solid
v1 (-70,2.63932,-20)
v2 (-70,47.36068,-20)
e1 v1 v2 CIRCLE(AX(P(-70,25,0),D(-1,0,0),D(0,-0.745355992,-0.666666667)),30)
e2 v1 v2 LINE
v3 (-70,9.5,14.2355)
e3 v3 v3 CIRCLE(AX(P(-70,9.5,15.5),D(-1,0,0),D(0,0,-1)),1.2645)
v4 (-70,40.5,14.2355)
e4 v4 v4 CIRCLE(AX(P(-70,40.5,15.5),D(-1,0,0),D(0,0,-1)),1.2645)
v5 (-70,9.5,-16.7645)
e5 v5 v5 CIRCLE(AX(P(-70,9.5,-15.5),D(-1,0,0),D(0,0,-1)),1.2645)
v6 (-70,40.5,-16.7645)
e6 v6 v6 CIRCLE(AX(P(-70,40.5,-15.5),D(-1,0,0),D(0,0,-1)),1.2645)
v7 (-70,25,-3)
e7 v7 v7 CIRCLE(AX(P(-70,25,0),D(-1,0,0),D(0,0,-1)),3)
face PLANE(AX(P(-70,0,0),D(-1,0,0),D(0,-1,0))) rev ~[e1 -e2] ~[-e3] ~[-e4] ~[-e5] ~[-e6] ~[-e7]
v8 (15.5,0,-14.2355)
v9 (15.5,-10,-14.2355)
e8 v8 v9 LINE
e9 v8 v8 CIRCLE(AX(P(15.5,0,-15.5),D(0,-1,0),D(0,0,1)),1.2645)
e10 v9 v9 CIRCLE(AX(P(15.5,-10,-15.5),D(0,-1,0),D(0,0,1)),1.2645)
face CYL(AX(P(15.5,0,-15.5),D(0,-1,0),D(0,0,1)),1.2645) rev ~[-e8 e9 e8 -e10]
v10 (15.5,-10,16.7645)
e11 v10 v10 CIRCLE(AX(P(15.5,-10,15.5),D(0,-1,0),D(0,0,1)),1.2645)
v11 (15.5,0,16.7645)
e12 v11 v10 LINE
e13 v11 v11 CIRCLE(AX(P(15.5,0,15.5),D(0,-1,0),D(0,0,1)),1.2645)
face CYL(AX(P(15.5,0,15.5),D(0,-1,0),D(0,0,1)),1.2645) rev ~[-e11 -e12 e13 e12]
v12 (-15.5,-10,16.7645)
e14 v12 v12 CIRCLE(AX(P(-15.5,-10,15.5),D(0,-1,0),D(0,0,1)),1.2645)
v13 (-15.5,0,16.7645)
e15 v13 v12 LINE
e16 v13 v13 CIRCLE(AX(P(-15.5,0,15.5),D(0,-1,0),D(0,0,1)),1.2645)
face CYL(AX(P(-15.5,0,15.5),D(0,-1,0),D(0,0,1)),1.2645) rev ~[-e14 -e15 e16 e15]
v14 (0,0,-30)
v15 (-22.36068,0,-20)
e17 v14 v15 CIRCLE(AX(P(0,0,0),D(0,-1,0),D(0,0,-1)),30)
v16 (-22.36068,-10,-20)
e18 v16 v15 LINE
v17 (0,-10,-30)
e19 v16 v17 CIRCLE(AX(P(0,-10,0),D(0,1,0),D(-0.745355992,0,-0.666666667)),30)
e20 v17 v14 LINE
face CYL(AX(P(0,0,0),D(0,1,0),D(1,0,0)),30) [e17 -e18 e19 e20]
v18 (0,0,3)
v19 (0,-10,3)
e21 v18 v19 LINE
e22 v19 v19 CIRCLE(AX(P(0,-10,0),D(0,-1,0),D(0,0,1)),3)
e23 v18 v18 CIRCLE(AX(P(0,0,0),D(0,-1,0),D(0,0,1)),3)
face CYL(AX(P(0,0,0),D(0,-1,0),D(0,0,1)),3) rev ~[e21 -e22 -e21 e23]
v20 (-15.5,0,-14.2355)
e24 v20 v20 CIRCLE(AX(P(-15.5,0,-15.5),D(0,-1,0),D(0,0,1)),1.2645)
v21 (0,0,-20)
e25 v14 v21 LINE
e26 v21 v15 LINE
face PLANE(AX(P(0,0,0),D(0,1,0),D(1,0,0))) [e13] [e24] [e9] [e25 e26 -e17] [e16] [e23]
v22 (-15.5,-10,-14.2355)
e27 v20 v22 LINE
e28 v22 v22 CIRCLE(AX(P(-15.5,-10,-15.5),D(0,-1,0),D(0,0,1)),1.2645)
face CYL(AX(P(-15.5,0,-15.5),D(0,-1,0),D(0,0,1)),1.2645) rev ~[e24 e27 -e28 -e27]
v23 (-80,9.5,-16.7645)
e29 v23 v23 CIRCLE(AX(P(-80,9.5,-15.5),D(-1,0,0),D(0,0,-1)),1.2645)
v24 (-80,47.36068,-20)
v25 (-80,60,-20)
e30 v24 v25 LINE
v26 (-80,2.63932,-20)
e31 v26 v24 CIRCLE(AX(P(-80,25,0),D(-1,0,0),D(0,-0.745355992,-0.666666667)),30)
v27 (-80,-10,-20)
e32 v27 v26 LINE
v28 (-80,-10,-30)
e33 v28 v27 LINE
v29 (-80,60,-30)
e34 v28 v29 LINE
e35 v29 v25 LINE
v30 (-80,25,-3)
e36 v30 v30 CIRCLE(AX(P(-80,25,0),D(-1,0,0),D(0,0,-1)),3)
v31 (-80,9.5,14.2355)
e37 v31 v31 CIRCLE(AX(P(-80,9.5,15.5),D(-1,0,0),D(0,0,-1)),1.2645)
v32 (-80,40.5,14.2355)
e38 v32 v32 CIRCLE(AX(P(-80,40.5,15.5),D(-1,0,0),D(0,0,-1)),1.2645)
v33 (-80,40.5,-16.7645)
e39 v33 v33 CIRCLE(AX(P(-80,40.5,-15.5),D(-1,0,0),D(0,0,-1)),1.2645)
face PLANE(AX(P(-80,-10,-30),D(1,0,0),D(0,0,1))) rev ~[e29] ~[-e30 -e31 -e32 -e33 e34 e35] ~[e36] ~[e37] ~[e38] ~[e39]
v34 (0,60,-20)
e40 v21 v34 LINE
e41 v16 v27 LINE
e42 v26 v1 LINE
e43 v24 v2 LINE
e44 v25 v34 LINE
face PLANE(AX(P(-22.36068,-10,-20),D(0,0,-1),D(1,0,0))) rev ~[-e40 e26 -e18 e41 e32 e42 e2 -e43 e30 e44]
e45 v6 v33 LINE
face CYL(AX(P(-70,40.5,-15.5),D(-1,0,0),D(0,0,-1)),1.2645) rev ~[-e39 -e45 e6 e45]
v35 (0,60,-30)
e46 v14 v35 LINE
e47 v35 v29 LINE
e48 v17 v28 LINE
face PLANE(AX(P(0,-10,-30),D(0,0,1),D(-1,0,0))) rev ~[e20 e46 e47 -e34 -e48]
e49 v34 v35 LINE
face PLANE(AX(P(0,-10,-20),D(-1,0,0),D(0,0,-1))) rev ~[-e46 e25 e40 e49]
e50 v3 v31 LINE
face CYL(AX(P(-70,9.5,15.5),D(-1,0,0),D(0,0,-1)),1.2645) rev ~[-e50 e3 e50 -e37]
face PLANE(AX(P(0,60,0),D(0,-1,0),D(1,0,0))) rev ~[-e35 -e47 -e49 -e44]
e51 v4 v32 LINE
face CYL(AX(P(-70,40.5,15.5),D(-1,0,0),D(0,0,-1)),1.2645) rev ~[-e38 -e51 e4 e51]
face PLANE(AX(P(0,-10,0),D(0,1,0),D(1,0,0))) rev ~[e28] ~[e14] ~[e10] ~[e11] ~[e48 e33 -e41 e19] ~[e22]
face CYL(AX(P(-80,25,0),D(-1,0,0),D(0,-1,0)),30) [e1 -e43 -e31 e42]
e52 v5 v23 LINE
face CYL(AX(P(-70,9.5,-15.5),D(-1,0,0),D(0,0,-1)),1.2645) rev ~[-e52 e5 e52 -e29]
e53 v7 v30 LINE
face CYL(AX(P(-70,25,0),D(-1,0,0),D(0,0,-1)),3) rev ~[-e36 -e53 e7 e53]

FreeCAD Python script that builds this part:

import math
import FreeCAD as App
import Part
import Sketcher

V = App.Vector

doc = App.newDocument("Part")
body = doc.addObject("PartDesign::Body", "Body")

sketch1 = body.newObject("Sketcher::SketchObject", "Sketch")
sketch1.AttachmentSupport = (doc.getObject("XZ_Plane"), [""])
sketch1.MapMode = "FlatFace"
sketch1.addGeometry(Part.Circle(V(0, 0, 0), V(0, 0, 1), 30), False)
sketch1.addConstraint([
    Sketcher.Constraint("Coincident", 0, 3, -1, 1),
    Sketcher.Constraint("Diameter", 0, 60.0),
])
pad1 = body.newObject("PartDesign::Pad", "Pad")
pad1.Profile = sketch1
pad1.Length = 10

sketch2 = body.newObject("Sketcher::SketchObject", "Sketch001")
sketch2.AttachmentSupport = (doc.getObject("XZ_Plane"), [""])
sketch2.MapMode = "FlatFace"
sketch2.AttachmentOffset = App.Placement(V(0, 0, 10), App.Rotation())
sketch2.addGeometry([
    Part.LineSegment(V(-80, -30, 0), V(0, -30, 0)),
    Part.LineSegment(V(0, -30, 0), V(0, -20, 0)),
    Part.LineSegment(V(0, -20, 0), V(-80, -20, 0)),
    Part.LineSegment(V(-80, -20, 0), V(-80, -30, 0)),
], False)
sketch2.addConstraint([
    Sketcher.Constraint("Coincident", 0, 2, 1, 1),
    Sketcher.Constraint("Coincident", 1, 2, 2, 1),
    Sketcher.Constraint("Coincident", 2, 2, 3, 1),
    Sketcher.Constraint("Coincident", 3, 2, 0, 1),
    Sketcher.Constraint("Horizontal", 0),
    Sketcher.Constraint("Vertical", 1),
    Sketcher.Constraint("Horizontal", 2),
    Sketcher.Constraint("Vertical", 3),
    Sketcher.Constraint("PointOnObject", 0, 2, -2),
    Sketcher.Constraint("DistanceX", 0, 1, 0, 2, 80.0),
    Sketcher.Constraint("DistanceY", 1, 1, 1, 2, 10.0),
    Sketcher.Constraint("DistanceY", 0, 2, -1, 1, 30.0),
])
pad2 = body.newObject("PartDesign::Pad", "Pad001")
pad2.Profile = sketch2
pad2.Length = 70
pad2.Reversed = True

sketch3 = body.newObject("Sketcher::SketchObject", "Sketch002")
sketch3.AttachmentSupport = (doc.getObject("YZ_Plane"), [""])
sketch3.MapMode = "FlatFace"
sketch3.AttachmentOffset = App.Placement(V(0, 0, -80), App.Rotation())
sketch3.addGeometry([
    Part.LineSegment(V(47, -20, 0), V(3, -20, 0)),
    Part.ArcOfCircle(Part.Circle(V(25, 0, 0), V(0, 0, 1), 30), math.radians(-42), math.radians(222)),
], False)
sketch3.addConstraint([
    Sketcher.Constraint("Coincident", 0, 1, 1, 1),
    Sketcher.Constraint("Coincident", 1, 2, 0, 2),
    Sketcher.Constraint("Horizontal", 0),
    Sketcher.Constraint("PointOnObject", 1, 3, -1),
    Sketcher.Constraint("Radius", 1, 30.0),
    Sketcher.Constraint("DistanceX", -1, 1, 1, 3, 25.0),
    Sketcher.Constraint("DistanceY", 0, 1, -1, 1, 20.0),
])
pad3 = body.newObject("PartDesign::Pad", "Pad002")
pad3.Profile = sketch3
pad3.Length = 10

sketch4 = body.newObject("Sketcher::SketchObject", "Sketch003")
sketch4.AttachmentSupport = (doc.getObject("XZ_Plane"), [""])
sketch4.MapMode = "FlatFace"
sketch4.addGeometry([
    Part.Circle(V(15.5, 15.5, 0), V(0, 0, 1), 1.3),
    Part.Circle(V(-15.5, 15.5, 0), V(0, 0, 1), 1.3),
    Part.Circle(V(15.5, -15.5, 0), V(0, 0, 1), 1.3),
    Part.Circle(V(-15.5, -15.5, 0), V(0, 0, 1), 1.3),
], False)
sketch4.addConstraint([
    Sketcher.Constraint("Equal", 0, 1),
    Sketcher.Constraint("Equal", 1, 2),
    Sketcher.Constraint("Equal", 2, 3),
    Sketcher.Constraint("Symmetric", 1, 3, 2, 3, -1, 1),
    Sketcher.Constraint("Symmetric", 0, 3, 3, 3, -1, 1),
    Sketcher.Constraint("Symmetric", 0, 3, 1, 3, -2),
    Sketcher.Constraint("Diameter", 0, 2.529),
    Sketcher.Constraint("DistanceX", 1, 3, 0, 3, 31.0),
    Sketcher.Constraint("DistanceY", 2, 3, 0, 3, 31.0),
])
doc.recompute()
hole = body.newObject("PartDesign::Hole", "Hole")
hole.Profile = sketch4
hole.ThreadType = "None"
hole.Diameter = 2.529
hole.DepthType = "Dimension"
hole.Depth = 10
hole.DrillPoint = "Angled"
hole.DrillPointAngle = 118
hole.Reversed = True

sketch5 = body.newObject("Sketcher::SketchObject", "Sketch004")
sketch5.AttachmentSupport = (doc.getObject("XZ_Plane"), [""])
sketch5.MapMode = "FlatFace"
sketch5.addGeometry(Part.Circle(V(0, 0, 0), V(0, 0, 1), 3), False)
sketch5.addConstraint([
    Sketcher.Constraint("Coincident", 0, 3, -1, 1),
    Sketcher.Constraint("Diameter", 0, 6.0),
])
doc.recompute()
hole2 = body.newObject("PartDesign::Hole", "Hole001")
hole2.Profile = sketch5
hole2.ThreadType = "None"
hole2.Diameter = 6
hole2.DepthType = "Dimension"
hole2.Depth = 10
hole2.DrillPoint = "Angled"
hole2.DrillPointAngle = 118
hole2.Reversed = True

sketch6 = body.newObject("Sketcher::SketchObject", "Sketch005")
sketch6.AttachmentSupport = (doc.getObject("YZ_Plane"), [""])
sketch6.MapMode = "FlatFace"
sketch6.AttachmentOffset = App.Placement(V(0, 0, -70), App.Rotation())
sketch6.addGeometry([
    Part.Circle(V(9.5, 15.5, 0), V(0, 0, 1), 1.3),
    Part.Circle(V(40.5, 15.5, 0), V(0, 0, 1), 1.3),
    Part.Circle(V(9.5, -15.5, 0), V(0, 0, 1), 1.3),
    Part.Circle(V(40.5, -15.5, 0), V(0, 0, 1), 1.3),
], False)
sketch6.addConstraint([
    Sketcher.Constraint("Equal", 0, 1),
    Sketcher.Constraint("Equal", 1, 2),
    Sketcher.Constraint("Equal", 2, 3),
    Sketcher.Constraint("Symmetric", 0, 3, 2, 3, -1),
    Sketcher.Constraint("Symmetric", 1, 3, 3, 3, -1),
    Sketcher.Constraint("Horizontal", 0, 3, 1, 3),
    Sketcher.Constraint("Diameter", 0, 2.529),
    Sketcher.Constraint("DistanceX", 0, 3, 1, 3, 31.0),
    Sketcher.Constraint("DistanceY", 2, 3, 0, 3, 31.0),
    Sketcher.Constraint("DistanceX", -1, 1, 0, 3, 9.5),
])
doc.recompute()
hole3 = body.newObject("PartDesign::Hole", "Hole002")
hole3.Profile = sketch6
hole3.ThreadType = "None"
hole3.Diameter = 2.529
hole3.DepthType = "Dimension"
hole3.Depth = 10
hole3.DrillPoint = "Angled"
hole3.DrillPointAngle = 118

sketch7 = body.newObject("Sketcher::SketchObject", "Sketch006")
sketch7.AttachmentSupport = (doc.getObject("YZ_Plane"), [""])
sketch7.MapMode = "FlatFace"
sketch7.AttachmentOffset = App.Placement(V(0, 0, -70), App.Rotation())
sketch7.addGeometry(Part.Circle(V(25, 0, 0), V(0, 0, 1), 3), False)
sketch7.addConstraint([
    Sketcher.Constraint("PointOnObject", 0, 3, -1),
    Sketcher.Constraint("Diameter", 0, 6.0),
    Sketcher.Constraint("DistanceX", -1, 1, 0, 3, 25.0),
])
doc.recompute()
hole4 = body.newObject("PartDesign::Hole", "Hole003")
hole4.Profile = sketch7
hole4.ThreadType = "None"
hole4.Diameter = 6
hole4.DepthType = "Dimension"
hole4.Depth = 10
hole4.DrillPoint = "Angled"
hole4.DrillPointAngle = 118

doc.recompute()
